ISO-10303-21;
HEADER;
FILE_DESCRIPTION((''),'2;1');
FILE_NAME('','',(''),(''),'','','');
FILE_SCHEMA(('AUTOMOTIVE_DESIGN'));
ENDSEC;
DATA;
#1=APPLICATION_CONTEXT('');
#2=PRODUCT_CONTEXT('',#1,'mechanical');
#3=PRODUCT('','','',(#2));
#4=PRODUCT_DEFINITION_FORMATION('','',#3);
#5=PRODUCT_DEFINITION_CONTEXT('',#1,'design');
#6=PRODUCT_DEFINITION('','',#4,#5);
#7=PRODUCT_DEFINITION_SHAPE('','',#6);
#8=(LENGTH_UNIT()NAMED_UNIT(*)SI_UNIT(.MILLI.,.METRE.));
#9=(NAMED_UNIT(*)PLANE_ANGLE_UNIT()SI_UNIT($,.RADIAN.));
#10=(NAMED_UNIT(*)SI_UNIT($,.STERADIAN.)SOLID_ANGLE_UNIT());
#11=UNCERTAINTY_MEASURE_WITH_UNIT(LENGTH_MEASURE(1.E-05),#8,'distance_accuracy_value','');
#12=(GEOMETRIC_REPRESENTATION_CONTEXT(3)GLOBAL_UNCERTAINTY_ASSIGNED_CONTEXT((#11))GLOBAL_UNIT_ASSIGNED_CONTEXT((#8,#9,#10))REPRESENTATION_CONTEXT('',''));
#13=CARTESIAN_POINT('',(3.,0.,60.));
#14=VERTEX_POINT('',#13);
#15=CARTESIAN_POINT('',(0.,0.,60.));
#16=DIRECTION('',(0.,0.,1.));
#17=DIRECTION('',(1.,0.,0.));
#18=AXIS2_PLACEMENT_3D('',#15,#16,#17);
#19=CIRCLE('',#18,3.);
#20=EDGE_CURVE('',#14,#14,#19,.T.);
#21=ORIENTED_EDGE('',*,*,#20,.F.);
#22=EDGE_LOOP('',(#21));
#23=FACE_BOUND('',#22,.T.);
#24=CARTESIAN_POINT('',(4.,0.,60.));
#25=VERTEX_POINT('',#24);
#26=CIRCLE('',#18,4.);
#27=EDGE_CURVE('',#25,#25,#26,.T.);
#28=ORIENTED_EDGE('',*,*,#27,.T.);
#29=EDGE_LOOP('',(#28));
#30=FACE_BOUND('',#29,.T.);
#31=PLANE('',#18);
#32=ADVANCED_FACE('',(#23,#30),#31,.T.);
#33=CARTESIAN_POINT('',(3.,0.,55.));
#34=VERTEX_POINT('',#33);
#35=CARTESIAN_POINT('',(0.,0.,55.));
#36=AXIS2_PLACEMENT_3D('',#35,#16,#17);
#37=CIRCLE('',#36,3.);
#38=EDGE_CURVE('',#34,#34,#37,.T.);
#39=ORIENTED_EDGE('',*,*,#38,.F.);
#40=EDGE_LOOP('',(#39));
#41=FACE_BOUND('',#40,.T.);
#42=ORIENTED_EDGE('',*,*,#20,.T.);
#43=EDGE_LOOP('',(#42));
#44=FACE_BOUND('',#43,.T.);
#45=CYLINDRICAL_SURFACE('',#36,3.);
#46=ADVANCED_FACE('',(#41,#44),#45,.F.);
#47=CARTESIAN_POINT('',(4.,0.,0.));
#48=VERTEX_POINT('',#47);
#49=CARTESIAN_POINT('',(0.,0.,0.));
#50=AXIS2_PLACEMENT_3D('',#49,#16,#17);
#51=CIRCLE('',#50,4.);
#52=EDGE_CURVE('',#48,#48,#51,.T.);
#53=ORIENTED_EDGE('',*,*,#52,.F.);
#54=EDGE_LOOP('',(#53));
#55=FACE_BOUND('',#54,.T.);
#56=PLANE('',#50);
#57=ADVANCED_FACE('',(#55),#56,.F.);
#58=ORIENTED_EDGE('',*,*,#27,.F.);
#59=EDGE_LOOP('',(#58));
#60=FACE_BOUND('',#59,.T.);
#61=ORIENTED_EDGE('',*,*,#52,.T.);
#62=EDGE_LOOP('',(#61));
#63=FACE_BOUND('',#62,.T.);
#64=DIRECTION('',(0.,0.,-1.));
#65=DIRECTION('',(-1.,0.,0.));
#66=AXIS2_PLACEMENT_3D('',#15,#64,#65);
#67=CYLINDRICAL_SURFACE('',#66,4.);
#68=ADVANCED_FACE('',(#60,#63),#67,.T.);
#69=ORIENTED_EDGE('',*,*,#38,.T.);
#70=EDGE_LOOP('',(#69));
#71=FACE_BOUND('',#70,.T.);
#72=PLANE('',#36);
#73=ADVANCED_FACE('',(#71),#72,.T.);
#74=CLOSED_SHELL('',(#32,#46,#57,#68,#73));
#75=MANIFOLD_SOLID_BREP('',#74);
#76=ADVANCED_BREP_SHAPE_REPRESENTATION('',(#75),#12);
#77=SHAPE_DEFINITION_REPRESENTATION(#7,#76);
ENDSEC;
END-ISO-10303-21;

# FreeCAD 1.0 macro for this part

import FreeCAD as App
import Part
import Sketcher
from FreeCAD import Vector
Q = App.Units.Quantity

doc = App.newDocument("Part")
params = doc.addObject("Spreadsheet::Sheet", "Params")
for row, (alias, value) in enumerate([
    ("sketch1_diameter", "8 mm"),
    ("pad1_length", "60 mm"),
    ("sketch2_diameter", "6 mm"),
    ("pocket1_length", "5 mm"),
], start=1):
    params.set(f"A{row}", alias)
    params.set(f"B{row}", "=" + value)
    params.setAlias(f"B{row}", alias)

body = doc.addObject("PartDesign::Body", "Body")

# Sketch on XY plane
sketch1 = doc.addObject("Sketcher::SketchObject", "Sketch")
body.addObject(sketch1)
sketch1.AttachmentSupport = (doc.XY_Plane, [""])
sketch1.MapMode = "FlatFace"
sketch1.addGeometry(Part.Circle(Vector(0, 0, 0), Vector(0, 0, 1), 4), False)
sketch1.addConstraint([
    Sketcher.Constraint("Coincident", 0, 3, -1, 1),
    Sketcher.Constraint("Diameter", 0, Q("8 mm")),
])
sketch1.setExpression("Constraints[1]", "Params.sketch1_diameter")
pad1 = doc.addObject("PartDesign::Pad", "Pad")
body.addObject(pad1)
pad1.Profile = sketch1
pad1.setExpression("Length", "Params.pad1_length")

# Sketch on XY plane
sketch2 = doc.addObject("Sketcher::SketchObject", "Sketch001")
body.addObject(sketch2)
sketch2.AttachmentSupport = (doc.XY_Plane, [""])
sketch2.MapMode = "FlatFace"
sketch2.AttachmentOffset = App.Placement(Vector(0, 0, 60), App.Rotation())
sketch2.addGeometry(Part.Circle(Vector(0, 0, 0), Vector(0, 0, 1), 3), False)
sketch2.addConstraint([
    Sketcher.Constraint("Coincident", 0, 3, -1, 1),
    Sketcher.Constraint("Diameter", 0, Q("6 mm")),
])
sketch2.setExpression("Constraints[1]", "Params.sketch2_diameter")
pocket1 = doc.addObject("PartDesign::Pocket", "Pocket")
body.addObject(pocket1)
pocket1.Profile = sketch2
pocket1.setExpression("Length", "Params.pocket1_length")

doc.recompute()
